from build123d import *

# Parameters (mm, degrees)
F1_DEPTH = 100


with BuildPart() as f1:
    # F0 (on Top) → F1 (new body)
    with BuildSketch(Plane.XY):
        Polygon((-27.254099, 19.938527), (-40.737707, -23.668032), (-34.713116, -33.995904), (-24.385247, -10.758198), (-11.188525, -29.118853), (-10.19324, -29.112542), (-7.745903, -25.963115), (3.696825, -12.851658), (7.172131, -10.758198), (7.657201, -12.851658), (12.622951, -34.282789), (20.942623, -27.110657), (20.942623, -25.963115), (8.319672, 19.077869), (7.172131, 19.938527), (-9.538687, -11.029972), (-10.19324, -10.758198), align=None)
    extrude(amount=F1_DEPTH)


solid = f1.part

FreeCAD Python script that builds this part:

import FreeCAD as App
import Part
import Sketcher

V = App.Vector

doc = App.newDocument("Part")
body = doc.addObject("PartDesign::Body", "Body")

# Sketch on XY plane
sketch1 = doc.addObject("Sketcher::SketchObject", "Sketch")
body.addObject(sketch1)
sketch1.AttachmentSupport = (doc.XY_Plane, [""])
sketch1.MapMode = "FlatFace"
sketch1.addGeometry([
    Part.LineSegment(V(-27.3, 19.9, 0), V(-40.7, -23.7, 0)),  # 0
    Part.LineSegment(V(-40.7, -23.7, 0), V(-34.7, -34, 0)),  # 1
    Part.LineSegment(V(-34.7, -34, 0), V(-24.4, -10.8, 0)),  # 2
    Part.LineSegment(V(-24.4, -10.8, 0), V(-11.2, -29.1, 0)),  # 3
    Part.LineSegment(V(-11.2, -29.1, 0), V(-10.2, -29.1, 0)),  # 4
    Part.LineSegment(V(-10.2, -29.1, 0), V(-7.7, -26, 0)),  # 5
    Part.LineSegment(V(-7.7, -26, 0), V(3.7, -12.9, 0)),  # 6
    Part.LineSegment(V(3.7, -12.9, 0), V(7.2, -10.8, 0)),  # 7
    Part.LineSegment(V(7.2, -10.8, 0), V(7.7, -12.9, 0)),  # 8
    Part.LineSegment(V(7.7, -12.9, 0), V(12.6, -34.3, 0)),  # 9
    Part.LineSegment(V(12.6, -34.3, 0), V(20.9, -27.1, 0)),  # 10
    Part.LineSegment(V(20.9, -27.1, 0), V(20.9, -26, 0)),  # 11
    Part.LineSegment(V(20.9, -26, 0), V(8.3, 19.1, 0)),  # 12
    Part.LineSegment(V(8.3, 19.1, 0), V(7.2, 19.9, 0)),  # 13
    Part.LineSegment(V(7.2, 19.9, 0), V(-9.5, -11, 0)),  # 14
    Part.LineSegment(V(-9.5, -11, 0), V(-10.2, -10.8, 0)),  # 15
    Part.LineSegment(V(-10.2, -10.8, 0), V(-27.3, 19.9, 0)),  # 16
], False)
sketch1.addConstraint([
    Sketcher.Constraint("Coincident", 0, 2, 1, 1),
    Sketcher.Constraint("Coincident", 1, 2, 2, 1),
    Sketcher.Constraint("Coincident", 2, 2, 3, 1),
    Sketcher.Constraint("Coincident", 3, 2, 4, 1),
    Sketcher.Constraint("Coincident", 4, 2, 5, 1),
    Sketcher.Constraint("Coincident", 5, 2, 6, 1),
    Sketcher.Constraint("Coincident", 6, 2, 7, 1),
    Sketcher.Constraint("Coincident", 7, 2, 8, 1),
    Sketcher.Constraint("Coincident", 8, 2, 9, 1),
    Sketcher.Constraint("Coincident", 9, 2, 10, 1),
    Sketcher.Constraint("Coincident", 10, 2, 11, 1),
    Sketcher.Constraint("Coincident", 11, 2, 12, 1),
    Sketcher.Constraint("Coincident", 12, 2, 13, 1),
    Sketcher.Constraint("Coincident", 13, 2, 14, 1),
    Sketcher.Constraint("Coincident", 14, 2, 15, 1),
    Sketcher.Constraint("Coincident", 15, 2, 16, 1),
    Sketcher.Constraint("Coincident", 16, 2, 0, 1),
    Sketcher.Constraint("Vertical", 11),
    Sketcher.Constraint("Parallel", 8, 9),
    Sketcher.Constraint("Horizontal", 2, 2, 7, 2),
    Sketcher.Constraint("Horizontal", 6, 2, 8, 2),
    Sketcher.Constraint("Horizontal", 5, 2, 11, 2),
    Sketcher.Constraint("Horizontal", 7, 2, 15, 2),
    Sketcher.Constraint("Horizontal", 13, 2, 16, 2),
    Sketcher.Constraint("Vertical", 7, 2, 13, 2),
    Sketcher.Constraint("Vertical", 4, 2, 15, 2),
    Sketcher.Constraint("DistanceY", 10, 2, 8, 2, 14.258999),
    Sketcher.Constraint("DistanceX", -1, 1, 8, 2, 7.657201),
    Sketcher.Constraint("DistanceX", 16, 2, -1, 1, 27.254099),
    Sketcher.Constraint("DistanceX", 6, 2, 10, 2, 17.245798),
    Sketcher.Constraint("DistanceY", 14, 2, 16, 2, 30.968499),
    Sketcher.Constraint("Distance", 2, 25.429429),
    Sketcher.Constraint("Distance", 6, 17.402481),
    Sketcher.Constraint("Distance", 9, 21.99891),
    Sketcher.Constraint("Distance", 10, 10.984372),
    Sketcher.Constraint("Distance", 14, 35.189478),
    Sketcher.Constraint("Distance", 15, 0.708732),
    Sketcher.Constraint("Distance", 16, 35.119252),
    Sketcher.Constraint("DistanceY", 11, 1, 11, 2, 1.147542),
    Sketcher.Constraint("DistanceY", 0, 2, -1, 1, 23.668032),
    Sketcher.Constraint("DistanceX", 4, 2, -1, 1, 10.19324),
    Sketcher.Constraint("DistanceX", -1, 1, 9, 2, 12.622951),
    Sketcher.Constraint("DistanceY", 9, 2, -1, 1, 34.282789),
    Sketcher.Constraint("DistanceY", -1, 1, 12, 2, 19.077869),
    Sketcher.Constraint("DistanceX", 0, 2, 1, 2, 6.024591),
    Sketcher.Constraint("DistanceX", 0, 2, 2, 2, 16.35246),
    Sketcher.Constraint("DistanceX", 1, 2, 3, 2, 23.524591),
    Sketcher.Constraint("DistanceY", 1, 2, 3, 2, 4.877051),
    Sketcher.Constraint("DistanceY", 3, 2, 4, 2, 0.006311),
    Sketcher.Constraint("DistanceX", 3, 2, 6, 2, 14.88535),
    Sketcher.Constraint("DistanceX", 7, 2, 12, 2, 1.147541),
])
pad1 = doc.addObject("PartDesign::Pad", "Pad")
body.addObject(pad1)
pad1.Profile = sketch1
pad1.Length = 100

doc.recompute()
